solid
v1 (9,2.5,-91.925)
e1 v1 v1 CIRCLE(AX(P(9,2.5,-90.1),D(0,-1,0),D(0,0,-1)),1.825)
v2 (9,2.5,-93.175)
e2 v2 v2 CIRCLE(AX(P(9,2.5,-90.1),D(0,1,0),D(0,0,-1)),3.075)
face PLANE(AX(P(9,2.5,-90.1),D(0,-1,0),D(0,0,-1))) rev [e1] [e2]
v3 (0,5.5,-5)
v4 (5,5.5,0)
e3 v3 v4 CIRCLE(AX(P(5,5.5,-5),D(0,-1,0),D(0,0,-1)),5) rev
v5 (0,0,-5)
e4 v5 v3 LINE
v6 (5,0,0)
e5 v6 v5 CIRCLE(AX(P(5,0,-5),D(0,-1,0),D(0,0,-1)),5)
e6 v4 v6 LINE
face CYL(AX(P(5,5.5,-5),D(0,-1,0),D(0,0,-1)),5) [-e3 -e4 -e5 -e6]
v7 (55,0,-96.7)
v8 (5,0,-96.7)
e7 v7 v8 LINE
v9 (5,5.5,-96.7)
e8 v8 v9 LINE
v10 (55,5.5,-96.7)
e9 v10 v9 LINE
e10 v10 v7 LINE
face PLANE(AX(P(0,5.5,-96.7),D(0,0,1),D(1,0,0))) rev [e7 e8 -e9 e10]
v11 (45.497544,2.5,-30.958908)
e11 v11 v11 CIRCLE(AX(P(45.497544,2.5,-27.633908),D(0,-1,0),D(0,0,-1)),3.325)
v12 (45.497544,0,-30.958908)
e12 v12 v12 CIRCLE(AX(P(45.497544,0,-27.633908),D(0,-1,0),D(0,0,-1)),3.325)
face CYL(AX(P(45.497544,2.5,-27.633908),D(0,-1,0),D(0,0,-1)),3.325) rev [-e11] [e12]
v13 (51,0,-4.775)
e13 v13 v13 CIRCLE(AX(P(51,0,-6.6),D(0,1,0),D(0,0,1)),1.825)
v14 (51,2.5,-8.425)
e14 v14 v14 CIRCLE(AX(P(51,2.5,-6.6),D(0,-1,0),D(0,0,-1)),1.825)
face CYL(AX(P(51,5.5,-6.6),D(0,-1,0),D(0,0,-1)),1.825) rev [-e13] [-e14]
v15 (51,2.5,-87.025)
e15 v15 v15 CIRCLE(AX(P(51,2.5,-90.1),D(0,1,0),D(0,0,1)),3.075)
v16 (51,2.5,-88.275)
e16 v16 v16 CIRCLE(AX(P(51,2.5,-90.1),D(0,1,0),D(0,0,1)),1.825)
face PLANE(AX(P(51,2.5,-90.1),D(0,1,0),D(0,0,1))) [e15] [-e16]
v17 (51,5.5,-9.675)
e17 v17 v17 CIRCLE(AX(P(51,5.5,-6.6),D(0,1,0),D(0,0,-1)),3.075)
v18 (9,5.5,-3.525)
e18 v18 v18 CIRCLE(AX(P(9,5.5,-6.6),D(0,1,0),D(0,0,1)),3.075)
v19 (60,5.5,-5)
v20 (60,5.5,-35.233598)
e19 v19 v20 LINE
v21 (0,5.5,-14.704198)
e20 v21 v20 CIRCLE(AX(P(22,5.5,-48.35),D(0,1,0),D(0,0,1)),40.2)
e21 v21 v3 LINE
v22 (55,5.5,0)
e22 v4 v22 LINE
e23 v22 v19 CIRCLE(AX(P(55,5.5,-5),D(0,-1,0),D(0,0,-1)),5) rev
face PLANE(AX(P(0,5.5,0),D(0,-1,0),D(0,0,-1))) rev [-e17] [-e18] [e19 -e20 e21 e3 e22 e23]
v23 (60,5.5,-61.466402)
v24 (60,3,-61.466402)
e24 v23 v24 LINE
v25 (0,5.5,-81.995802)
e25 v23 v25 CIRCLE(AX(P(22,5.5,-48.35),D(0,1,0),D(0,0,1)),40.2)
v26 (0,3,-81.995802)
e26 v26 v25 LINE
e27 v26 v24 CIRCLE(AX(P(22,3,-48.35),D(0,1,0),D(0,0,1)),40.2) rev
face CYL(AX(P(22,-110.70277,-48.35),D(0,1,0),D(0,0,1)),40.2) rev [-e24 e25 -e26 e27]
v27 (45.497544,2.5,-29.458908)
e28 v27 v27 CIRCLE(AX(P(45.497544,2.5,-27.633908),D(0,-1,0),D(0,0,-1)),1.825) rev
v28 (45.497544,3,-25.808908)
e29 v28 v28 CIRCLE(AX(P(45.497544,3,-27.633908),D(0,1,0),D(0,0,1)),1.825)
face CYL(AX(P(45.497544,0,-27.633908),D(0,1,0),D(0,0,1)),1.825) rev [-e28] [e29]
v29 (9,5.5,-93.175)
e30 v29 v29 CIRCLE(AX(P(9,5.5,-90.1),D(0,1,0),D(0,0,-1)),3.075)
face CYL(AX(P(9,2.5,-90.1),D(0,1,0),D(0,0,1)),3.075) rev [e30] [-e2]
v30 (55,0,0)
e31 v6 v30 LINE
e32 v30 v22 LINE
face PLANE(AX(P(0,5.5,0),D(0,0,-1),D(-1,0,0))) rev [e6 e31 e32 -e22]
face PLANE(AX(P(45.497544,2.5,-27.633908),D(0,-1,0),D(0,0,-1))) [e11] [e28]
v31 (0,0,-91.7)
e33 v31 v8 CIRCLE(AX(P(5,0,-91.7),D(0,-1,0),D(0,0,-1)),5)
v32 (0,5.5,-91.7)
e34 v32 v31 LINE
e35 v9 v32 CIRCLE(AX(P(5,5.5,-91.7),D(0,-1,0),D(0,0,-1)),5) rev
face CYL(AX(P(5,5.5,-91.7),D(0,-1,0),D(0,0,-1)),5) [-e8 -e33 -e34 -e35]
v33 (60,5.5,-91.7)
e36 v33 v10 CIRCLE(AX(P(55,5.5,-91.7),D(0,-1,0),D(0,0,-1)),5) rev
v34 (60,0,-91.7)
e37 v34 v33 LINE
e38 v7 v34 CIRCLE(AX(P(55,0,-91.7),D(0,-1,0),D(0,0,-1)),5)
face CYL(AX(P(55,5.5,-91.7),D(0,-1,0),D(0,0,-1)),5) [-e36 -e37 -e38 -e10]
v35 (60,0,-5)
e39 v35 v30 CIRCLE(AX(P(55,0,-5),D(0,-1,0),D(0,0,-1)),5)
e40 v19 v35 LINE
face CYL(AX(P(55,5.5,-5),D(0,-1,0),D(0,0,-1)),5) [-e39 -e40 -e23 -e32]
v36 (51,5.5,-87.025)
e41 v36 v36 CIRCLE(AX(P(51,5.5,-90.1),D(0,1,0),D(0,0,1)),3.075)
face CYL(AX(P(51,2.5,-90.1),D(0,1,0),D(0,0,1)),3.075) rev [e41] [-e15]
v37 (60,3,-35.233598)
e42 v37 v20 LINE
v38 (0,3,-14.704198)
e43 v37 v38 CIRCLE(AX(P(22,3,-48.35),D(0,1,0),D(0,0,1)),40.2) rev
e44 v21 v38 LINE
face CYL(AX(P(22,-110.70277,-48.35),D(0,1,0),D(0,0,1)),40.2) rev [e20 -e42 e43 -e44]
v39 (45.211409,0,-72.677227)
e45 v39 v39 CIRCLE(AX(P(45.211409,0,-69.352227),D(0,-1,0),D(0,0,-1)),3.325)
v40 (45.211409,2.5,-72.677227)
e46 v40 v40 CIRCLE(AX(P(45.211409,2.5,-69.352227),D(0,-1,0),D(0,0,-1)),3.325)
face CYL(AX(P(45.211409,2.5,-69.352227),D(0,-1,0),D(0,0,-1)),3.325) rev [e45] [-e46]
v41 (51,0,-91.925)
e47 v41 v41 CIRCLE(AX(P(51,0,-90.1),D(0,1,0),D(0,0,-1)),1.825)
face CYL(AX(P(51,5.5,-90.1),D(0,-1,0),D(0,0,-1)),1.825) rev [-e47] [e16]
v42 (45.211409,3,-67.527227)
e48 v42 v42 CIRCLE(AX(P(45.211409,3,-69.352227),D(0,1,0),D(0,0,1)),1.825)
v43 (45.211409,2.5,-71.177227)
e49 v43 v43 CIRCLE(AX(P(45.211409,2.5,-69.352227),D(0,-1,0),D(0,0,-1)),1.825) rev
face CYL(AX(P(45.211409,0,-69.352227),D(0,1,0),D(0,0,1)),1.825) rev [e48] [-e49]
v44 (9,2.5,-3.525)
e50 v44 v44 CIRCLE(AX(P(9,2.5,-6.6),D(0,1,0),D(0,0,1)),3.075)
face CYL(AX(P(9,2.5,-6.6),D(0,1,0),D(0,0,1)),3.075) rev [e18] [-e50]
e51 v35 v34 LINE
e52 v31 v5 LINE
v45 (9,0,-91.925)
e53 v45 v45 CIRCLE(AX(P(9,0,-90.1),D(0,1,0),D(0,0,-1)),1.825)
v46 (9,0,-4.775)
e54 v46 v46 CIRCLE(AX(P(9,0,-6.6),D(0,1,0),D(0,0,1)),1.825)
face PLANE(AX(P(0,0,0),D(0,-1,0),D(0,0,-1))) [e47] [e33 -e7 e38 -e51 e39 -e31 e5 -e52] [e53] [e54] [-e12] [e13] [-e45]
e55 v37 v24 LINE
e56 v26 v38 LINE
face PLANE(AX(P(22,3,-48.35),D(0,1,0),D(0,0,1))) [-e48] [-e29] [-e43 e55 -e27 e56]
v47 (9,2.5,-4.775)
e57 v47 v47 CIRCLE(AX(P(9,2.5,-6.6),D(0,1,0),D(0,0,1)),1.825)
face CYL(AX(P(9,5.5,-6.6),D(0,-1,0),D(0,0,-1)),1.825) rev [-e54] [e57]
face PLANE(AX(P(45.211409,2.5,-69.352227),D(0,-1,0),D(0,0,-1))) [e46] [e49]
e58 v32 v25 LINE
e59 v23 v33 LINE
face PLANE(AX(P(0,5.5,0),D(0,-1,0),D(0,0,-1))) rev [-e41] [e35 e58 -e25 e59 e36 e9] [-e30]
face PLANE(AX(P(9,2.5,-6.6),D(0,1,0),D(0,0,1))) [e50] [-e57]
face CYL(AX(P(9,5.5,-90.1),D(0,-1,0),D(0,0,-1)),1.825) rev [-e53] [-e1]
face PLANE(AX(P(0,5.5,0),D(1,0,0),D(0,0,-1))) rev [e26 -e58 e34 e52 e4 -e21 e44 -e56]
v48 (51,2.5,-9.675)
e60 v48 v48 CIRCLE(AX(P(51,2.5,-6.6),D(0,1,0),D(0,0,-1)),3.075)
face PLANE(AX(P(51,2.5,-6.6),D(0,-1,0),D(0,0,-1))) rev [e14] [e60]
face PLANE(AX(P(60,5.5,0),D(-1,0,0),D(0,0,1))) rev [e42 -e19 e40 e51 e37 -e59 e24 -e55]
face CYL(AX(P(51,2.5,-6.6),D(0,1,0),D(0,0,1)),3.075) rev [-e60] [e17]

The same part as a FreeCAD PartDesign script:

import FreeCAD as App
import Part
import Sketcher
from FreeCAD import Vector


def edges_at(feature, points):
    """Names of the edges that pass closest to the given points."""
    edges = feature.Shape.Edges
    near = lambda p: min(range(len(edges)), key=lambda i: edges[i].distToShape(Part.Vertex(*p))[0])
    return sorted({f"Edge{near(p) + 1}" for p in points})


def add_polygon(sketch, points):
    """Adds a closed chain of lines whose ends are joined by coincident constraints."""
    first, n = sketch.GeometryCount, len(points)
    for a, b in zip(points, points[1:] + points[:1]):
        sketch.addGeometry(Part.LineSegment(App.Vector(*a, 0), App.Vector(*b, 0)), False)
    for i in range(n):
        sketch.addConstraint(Sketcher.Constraint("Coincident", first + i, 2, first + (i + 1) % n, 1))

doc = App.newDocument("Part")
body = doc.addObject("PartDesign::Body", "Body")

sketch1 = body.newObject("Sketcher::SketchObject", "Sketch")
sketch1.AttachmentSupport = (doc.getObject("XZ_Plane"), [""])
sketch1.MapMode = "FlatFace"
add_polygon(sketch1, [(0, -96.7), (0, 0), (60, 0), (60, -96.7)])
sketch1.addGeometry(Part.Circle(Vector(9, -6.6, 0), Vector(0, 0, 1), 1.825), False)
sketch1.addGeometry(Part.Circle(Vector(51, -6.6, 0), Vector(0, 0, 1), 1.825), False)
sketch1.addGeometry(Part.Circle(Vector(9, -90.1, 0), Vector(0, 0, 1), 1.825), False)
sketch1.addGeometry(Part.Circle(Vector(51, -90.1, 0), Vector(0, 0, 1), 1.825), False)
sketch1.addConstraint([
    Sketcher.Constraint("Vertical", 0),
    Sketcher.Constraint("Horizontal", 1),
    Sketcher.Constraint("Vertical", 2),
    Sketcher.Constraint("Horizontal", 3),
    Sketcher.Constraint("Coincident", 0, 2, -1, 1),
    Sketcher.Constraint("Equal", 4, 5),
    Sketcher.Constraint("Equal", 5, 6),
    Sketcher.Constraint("Equal", 6, 7),
    Sketcher.Constraint("Horizontal", 4, 3, 5, 3),
    Sketcher.Constraint("Horizontal", 6, 3, 7, 3),
    Sketcher.Constraint("Vertical", 4, 3, 6, 3),
    Sketcher.Constraint("Vertical", 5, 3, 7, 3),
    Sketcher.Constraint("Diameter", 4, 3.65),
    Sketcher.Constraint("DistanceX", 1, 1, 1, 2, 60.0),
    Sketcher.Constraint("DistanceY", 0, 1, 0, 2, 96.7),
    Sketcher.Constraint("DistanceX", -1, 1, 4, 3, 9.0),
    Sketcher.Constraint("DistanceX", -1, 1, 5, 3, 51.0),
    Sketcher.Constraint("DistanceY", 4, 3, -1, 1, 6.6),
    Sketcher.Constraint("DistanceY", 6, 3, -1, 1, 90.1),
])
pad1 = body.newObject("PartDesign::Pad", "Pad")
pad1.Profile = sketch1
pad1.Length = 5.5
pad1.Reversed = True
doc.recompute()

fillet = body.newObject("PartDesign::Fillet", "Fillet")
fillet.Base = (pad1, edges_at(pad1, [
    (0, 2.75, -96.7),
    (60, 2.75, -96.7),
    (60, 2.75, 0),
    (0, 2.75, 0),
]))
fillet.Radius = 5

sketch2 = body.newObject("Sketcher::SketchObject", "Sketch001")
sketch2.AttachmentSupport = (doc.getObject("XZ_Plane"), [""])
sketch2.MapMode = "FlatFace"
sketch2.AttachmentOffset = App.Placement(Vector(0, 0, -5.5), App.Rotation())
sketch2.addGeometry(Part.Circle(Vector(22, -48.35, 0), Vector(0, 0, 1), 39.5), False)
sketch2.addConstraint([
    Sketcher.Constraint("Diameter", 0, 79.0),
    Sketcher.Constraint("DistanceX", -1, 1, 0, 3, 22.0),
    Sketcher.Constraint("DistanceY", 0, 3, -1, 1, 48.35),
])
pocket1 = body.newObject("PartDesign::Pocket", "Pocket")
pocket1.Profile = sketch2
pocket1.Length = 2.5
pocket1.Reversed = True

sketch3 = body.newObject("Sketcher::SketchObject", "Sketch002")
sketch3.AttachmentSupport = (doc.getObject("XZ_Plane"), [""])
sketch3.MapMode = "FlatFace"
sketch3.AttachmentOffset = App.Placement(Vector(0, 0, -3), App.Rotation())
sketch3.addGeometry([
    Part.Circle(Vector(45.211409, -69.352227, 0), Vector(0, 0, 1), 1.825),
    Part.Circle(Vector(45.497544, -27.633908, 0), Vector(0, 0, 1), 1.825),
], False)
sketch3.addConstraint([
    Sketcher.Constraint("Equal", 0, 1),
    Sketcher.Constraint("Diameter", 0, 3.65),
    Sketcher.Constraint("DistanceX", -1, 1, 0, 3, 45.211409),
    Sketcher.Constraint("DistanceY", 1, 3, -1, 1, 27.633908),
    Sketcher.Constraint("DistanceY", 0, 3, 1, 3, 41.718319),
    Sketcher.Constraint("DistanceX", -1, 1, 1, 3, 45.497544),
])
pocket2 = body.newObject("PartDesign::Pocket", "Pocket001")
pocket2.Profile = sketch3
pocket2.Type = "ThroughAll"
pocket2.Reversed = True

sketch4 = body.newObject("Sketcher::SketchObject", "Sketch003")
sketch4.AttachmentSupport = (doc.getObject("XZ_Plane"), [""])
sketch4.MapMode = "FlatFace"
sketch4.addGeometry([
    Part.Circle(Vector(45.497544, -27.633908, 0), Vector(0, 0, 1), 3.325),
    Part.Circle(Vector(45.211409, -69.352227, 0), Vector(0, 0, 1), 3.325),
], False)
sketch4.addConstraint([
    Sketcher.Constraint("Equal", 0, 1),
    Sketcher.Constraint("Diameter", 0, 6.65),
    Sketcher.Constraint("DistanceY", 0, 3, -1, 1, 27.633908),
    Sketcher.Constraint("DistanceX", -1, 1, 1, 3, 45.211409),
    Sketcher.Constraint("DistanceY", 1, 3, 0, 3, 41.718319),
    Sketcher.Constraint("DistanceX", -1, 1, 0, 3, 45.497544),
])
pocket3 = body.newObject("PartDesign::Pocket", "Pocket002")
pocket3.Profile = sketch4
pocket3.Length = 2.5

sketch5 = body.newObject("Sketcher::SketchObject", "Sketch004")
sketch5.AttachmentSupport = (doc.getObject("XZ_Plane"), [""])
sketch5.MapMode = "FlatFace"
sketch5.AttachmentOffset = App.Placement(Vector(0, 0, -5.5), App.Rotation())
sketch5.addGeometry([
    Part.Circle(Vector(51, -90.1, 0), Vector(0, 0, 1), 3.075),
    Part.Circle(Vector(9, -90.1, 0), Vector(0, 0, 1), 3.075),
    Part.Circle(Vector(51, -6.6, 0), Vector(0, 0, 1), 3.075),
    Part.Circle(Vector(9, -6.6, 0), Vector(0, 0, 1), 3.075),
], False)
sketch5.addConstraint([
    Sketcher.Constraint("Equal", 0, 1),
    Sketcher.Constraint("Equal", 1, 2),
    Sketcher.Constraint("Equal", 2, 3),
    Sketcher.Constraint("Horizontal", 0, 3, 1, 3),
    Sketcher.Constraint("Horizontal", 2, 3, 3, 3),
    Sketcher.Constraint("Vertical", 0, 3, 2, 3),
    Sketcher.Constraint("Vertical", 1, 3, 3, 3),
    Sketcher.Constraint("Diameter", 0, 6.15),
    Sketcher.Constraint("DistanceX", -1, 1, 0, 3, 51.0),
    Sketcher.Constraint("DistanceX", -1, 1, 1, 3, 9.0),
    Sketcher.Constraint("DistanceY", 0, 3, -1, 1, 90.1),
    Sketcher.Constraint("DistanceY", 2, 3, -1, 1, 6.6),
])
pocket4 = body.newObject("PartDesign::Pocket", "Pocket003")
pocket4.Profile = sketch5
pocket4.Length = 3
pocket4.Reversed = True

sketch6 = body.newObject("Sketcher::SketchObject", "Sketch005")
sketch6.AttachmentSupport = (doc.getObject("XZ_Plane"), [""])
sketch6.MapMode = "FlatFace"
sketch6.AttachmentOffset = App.Placement(Vector(0, 0, -5.5), App.Rotation())
sketch6.addGeometry(Part.Circle(Vector(22, -48.35, 0), Vector(0, 0, 1), 40.2), False)
sketch6.addConstraint([
    Sketcher.Constraint("Diameter", 0, 80.4),
    Sketcher.Constraint("DistanceX", -1, 1, 0, 3, 22.0),
    Sketcher.Constraint("DistanceY", 0, 3, -1, 1, 48.35),
])
pocket5 = body.newObject("PartDesign::Pocket", "Pocket004")
pocket5.Profile = sketch6
pocket5.Length = 2.5
pocket5.Reversed = True

doc.recompute()
